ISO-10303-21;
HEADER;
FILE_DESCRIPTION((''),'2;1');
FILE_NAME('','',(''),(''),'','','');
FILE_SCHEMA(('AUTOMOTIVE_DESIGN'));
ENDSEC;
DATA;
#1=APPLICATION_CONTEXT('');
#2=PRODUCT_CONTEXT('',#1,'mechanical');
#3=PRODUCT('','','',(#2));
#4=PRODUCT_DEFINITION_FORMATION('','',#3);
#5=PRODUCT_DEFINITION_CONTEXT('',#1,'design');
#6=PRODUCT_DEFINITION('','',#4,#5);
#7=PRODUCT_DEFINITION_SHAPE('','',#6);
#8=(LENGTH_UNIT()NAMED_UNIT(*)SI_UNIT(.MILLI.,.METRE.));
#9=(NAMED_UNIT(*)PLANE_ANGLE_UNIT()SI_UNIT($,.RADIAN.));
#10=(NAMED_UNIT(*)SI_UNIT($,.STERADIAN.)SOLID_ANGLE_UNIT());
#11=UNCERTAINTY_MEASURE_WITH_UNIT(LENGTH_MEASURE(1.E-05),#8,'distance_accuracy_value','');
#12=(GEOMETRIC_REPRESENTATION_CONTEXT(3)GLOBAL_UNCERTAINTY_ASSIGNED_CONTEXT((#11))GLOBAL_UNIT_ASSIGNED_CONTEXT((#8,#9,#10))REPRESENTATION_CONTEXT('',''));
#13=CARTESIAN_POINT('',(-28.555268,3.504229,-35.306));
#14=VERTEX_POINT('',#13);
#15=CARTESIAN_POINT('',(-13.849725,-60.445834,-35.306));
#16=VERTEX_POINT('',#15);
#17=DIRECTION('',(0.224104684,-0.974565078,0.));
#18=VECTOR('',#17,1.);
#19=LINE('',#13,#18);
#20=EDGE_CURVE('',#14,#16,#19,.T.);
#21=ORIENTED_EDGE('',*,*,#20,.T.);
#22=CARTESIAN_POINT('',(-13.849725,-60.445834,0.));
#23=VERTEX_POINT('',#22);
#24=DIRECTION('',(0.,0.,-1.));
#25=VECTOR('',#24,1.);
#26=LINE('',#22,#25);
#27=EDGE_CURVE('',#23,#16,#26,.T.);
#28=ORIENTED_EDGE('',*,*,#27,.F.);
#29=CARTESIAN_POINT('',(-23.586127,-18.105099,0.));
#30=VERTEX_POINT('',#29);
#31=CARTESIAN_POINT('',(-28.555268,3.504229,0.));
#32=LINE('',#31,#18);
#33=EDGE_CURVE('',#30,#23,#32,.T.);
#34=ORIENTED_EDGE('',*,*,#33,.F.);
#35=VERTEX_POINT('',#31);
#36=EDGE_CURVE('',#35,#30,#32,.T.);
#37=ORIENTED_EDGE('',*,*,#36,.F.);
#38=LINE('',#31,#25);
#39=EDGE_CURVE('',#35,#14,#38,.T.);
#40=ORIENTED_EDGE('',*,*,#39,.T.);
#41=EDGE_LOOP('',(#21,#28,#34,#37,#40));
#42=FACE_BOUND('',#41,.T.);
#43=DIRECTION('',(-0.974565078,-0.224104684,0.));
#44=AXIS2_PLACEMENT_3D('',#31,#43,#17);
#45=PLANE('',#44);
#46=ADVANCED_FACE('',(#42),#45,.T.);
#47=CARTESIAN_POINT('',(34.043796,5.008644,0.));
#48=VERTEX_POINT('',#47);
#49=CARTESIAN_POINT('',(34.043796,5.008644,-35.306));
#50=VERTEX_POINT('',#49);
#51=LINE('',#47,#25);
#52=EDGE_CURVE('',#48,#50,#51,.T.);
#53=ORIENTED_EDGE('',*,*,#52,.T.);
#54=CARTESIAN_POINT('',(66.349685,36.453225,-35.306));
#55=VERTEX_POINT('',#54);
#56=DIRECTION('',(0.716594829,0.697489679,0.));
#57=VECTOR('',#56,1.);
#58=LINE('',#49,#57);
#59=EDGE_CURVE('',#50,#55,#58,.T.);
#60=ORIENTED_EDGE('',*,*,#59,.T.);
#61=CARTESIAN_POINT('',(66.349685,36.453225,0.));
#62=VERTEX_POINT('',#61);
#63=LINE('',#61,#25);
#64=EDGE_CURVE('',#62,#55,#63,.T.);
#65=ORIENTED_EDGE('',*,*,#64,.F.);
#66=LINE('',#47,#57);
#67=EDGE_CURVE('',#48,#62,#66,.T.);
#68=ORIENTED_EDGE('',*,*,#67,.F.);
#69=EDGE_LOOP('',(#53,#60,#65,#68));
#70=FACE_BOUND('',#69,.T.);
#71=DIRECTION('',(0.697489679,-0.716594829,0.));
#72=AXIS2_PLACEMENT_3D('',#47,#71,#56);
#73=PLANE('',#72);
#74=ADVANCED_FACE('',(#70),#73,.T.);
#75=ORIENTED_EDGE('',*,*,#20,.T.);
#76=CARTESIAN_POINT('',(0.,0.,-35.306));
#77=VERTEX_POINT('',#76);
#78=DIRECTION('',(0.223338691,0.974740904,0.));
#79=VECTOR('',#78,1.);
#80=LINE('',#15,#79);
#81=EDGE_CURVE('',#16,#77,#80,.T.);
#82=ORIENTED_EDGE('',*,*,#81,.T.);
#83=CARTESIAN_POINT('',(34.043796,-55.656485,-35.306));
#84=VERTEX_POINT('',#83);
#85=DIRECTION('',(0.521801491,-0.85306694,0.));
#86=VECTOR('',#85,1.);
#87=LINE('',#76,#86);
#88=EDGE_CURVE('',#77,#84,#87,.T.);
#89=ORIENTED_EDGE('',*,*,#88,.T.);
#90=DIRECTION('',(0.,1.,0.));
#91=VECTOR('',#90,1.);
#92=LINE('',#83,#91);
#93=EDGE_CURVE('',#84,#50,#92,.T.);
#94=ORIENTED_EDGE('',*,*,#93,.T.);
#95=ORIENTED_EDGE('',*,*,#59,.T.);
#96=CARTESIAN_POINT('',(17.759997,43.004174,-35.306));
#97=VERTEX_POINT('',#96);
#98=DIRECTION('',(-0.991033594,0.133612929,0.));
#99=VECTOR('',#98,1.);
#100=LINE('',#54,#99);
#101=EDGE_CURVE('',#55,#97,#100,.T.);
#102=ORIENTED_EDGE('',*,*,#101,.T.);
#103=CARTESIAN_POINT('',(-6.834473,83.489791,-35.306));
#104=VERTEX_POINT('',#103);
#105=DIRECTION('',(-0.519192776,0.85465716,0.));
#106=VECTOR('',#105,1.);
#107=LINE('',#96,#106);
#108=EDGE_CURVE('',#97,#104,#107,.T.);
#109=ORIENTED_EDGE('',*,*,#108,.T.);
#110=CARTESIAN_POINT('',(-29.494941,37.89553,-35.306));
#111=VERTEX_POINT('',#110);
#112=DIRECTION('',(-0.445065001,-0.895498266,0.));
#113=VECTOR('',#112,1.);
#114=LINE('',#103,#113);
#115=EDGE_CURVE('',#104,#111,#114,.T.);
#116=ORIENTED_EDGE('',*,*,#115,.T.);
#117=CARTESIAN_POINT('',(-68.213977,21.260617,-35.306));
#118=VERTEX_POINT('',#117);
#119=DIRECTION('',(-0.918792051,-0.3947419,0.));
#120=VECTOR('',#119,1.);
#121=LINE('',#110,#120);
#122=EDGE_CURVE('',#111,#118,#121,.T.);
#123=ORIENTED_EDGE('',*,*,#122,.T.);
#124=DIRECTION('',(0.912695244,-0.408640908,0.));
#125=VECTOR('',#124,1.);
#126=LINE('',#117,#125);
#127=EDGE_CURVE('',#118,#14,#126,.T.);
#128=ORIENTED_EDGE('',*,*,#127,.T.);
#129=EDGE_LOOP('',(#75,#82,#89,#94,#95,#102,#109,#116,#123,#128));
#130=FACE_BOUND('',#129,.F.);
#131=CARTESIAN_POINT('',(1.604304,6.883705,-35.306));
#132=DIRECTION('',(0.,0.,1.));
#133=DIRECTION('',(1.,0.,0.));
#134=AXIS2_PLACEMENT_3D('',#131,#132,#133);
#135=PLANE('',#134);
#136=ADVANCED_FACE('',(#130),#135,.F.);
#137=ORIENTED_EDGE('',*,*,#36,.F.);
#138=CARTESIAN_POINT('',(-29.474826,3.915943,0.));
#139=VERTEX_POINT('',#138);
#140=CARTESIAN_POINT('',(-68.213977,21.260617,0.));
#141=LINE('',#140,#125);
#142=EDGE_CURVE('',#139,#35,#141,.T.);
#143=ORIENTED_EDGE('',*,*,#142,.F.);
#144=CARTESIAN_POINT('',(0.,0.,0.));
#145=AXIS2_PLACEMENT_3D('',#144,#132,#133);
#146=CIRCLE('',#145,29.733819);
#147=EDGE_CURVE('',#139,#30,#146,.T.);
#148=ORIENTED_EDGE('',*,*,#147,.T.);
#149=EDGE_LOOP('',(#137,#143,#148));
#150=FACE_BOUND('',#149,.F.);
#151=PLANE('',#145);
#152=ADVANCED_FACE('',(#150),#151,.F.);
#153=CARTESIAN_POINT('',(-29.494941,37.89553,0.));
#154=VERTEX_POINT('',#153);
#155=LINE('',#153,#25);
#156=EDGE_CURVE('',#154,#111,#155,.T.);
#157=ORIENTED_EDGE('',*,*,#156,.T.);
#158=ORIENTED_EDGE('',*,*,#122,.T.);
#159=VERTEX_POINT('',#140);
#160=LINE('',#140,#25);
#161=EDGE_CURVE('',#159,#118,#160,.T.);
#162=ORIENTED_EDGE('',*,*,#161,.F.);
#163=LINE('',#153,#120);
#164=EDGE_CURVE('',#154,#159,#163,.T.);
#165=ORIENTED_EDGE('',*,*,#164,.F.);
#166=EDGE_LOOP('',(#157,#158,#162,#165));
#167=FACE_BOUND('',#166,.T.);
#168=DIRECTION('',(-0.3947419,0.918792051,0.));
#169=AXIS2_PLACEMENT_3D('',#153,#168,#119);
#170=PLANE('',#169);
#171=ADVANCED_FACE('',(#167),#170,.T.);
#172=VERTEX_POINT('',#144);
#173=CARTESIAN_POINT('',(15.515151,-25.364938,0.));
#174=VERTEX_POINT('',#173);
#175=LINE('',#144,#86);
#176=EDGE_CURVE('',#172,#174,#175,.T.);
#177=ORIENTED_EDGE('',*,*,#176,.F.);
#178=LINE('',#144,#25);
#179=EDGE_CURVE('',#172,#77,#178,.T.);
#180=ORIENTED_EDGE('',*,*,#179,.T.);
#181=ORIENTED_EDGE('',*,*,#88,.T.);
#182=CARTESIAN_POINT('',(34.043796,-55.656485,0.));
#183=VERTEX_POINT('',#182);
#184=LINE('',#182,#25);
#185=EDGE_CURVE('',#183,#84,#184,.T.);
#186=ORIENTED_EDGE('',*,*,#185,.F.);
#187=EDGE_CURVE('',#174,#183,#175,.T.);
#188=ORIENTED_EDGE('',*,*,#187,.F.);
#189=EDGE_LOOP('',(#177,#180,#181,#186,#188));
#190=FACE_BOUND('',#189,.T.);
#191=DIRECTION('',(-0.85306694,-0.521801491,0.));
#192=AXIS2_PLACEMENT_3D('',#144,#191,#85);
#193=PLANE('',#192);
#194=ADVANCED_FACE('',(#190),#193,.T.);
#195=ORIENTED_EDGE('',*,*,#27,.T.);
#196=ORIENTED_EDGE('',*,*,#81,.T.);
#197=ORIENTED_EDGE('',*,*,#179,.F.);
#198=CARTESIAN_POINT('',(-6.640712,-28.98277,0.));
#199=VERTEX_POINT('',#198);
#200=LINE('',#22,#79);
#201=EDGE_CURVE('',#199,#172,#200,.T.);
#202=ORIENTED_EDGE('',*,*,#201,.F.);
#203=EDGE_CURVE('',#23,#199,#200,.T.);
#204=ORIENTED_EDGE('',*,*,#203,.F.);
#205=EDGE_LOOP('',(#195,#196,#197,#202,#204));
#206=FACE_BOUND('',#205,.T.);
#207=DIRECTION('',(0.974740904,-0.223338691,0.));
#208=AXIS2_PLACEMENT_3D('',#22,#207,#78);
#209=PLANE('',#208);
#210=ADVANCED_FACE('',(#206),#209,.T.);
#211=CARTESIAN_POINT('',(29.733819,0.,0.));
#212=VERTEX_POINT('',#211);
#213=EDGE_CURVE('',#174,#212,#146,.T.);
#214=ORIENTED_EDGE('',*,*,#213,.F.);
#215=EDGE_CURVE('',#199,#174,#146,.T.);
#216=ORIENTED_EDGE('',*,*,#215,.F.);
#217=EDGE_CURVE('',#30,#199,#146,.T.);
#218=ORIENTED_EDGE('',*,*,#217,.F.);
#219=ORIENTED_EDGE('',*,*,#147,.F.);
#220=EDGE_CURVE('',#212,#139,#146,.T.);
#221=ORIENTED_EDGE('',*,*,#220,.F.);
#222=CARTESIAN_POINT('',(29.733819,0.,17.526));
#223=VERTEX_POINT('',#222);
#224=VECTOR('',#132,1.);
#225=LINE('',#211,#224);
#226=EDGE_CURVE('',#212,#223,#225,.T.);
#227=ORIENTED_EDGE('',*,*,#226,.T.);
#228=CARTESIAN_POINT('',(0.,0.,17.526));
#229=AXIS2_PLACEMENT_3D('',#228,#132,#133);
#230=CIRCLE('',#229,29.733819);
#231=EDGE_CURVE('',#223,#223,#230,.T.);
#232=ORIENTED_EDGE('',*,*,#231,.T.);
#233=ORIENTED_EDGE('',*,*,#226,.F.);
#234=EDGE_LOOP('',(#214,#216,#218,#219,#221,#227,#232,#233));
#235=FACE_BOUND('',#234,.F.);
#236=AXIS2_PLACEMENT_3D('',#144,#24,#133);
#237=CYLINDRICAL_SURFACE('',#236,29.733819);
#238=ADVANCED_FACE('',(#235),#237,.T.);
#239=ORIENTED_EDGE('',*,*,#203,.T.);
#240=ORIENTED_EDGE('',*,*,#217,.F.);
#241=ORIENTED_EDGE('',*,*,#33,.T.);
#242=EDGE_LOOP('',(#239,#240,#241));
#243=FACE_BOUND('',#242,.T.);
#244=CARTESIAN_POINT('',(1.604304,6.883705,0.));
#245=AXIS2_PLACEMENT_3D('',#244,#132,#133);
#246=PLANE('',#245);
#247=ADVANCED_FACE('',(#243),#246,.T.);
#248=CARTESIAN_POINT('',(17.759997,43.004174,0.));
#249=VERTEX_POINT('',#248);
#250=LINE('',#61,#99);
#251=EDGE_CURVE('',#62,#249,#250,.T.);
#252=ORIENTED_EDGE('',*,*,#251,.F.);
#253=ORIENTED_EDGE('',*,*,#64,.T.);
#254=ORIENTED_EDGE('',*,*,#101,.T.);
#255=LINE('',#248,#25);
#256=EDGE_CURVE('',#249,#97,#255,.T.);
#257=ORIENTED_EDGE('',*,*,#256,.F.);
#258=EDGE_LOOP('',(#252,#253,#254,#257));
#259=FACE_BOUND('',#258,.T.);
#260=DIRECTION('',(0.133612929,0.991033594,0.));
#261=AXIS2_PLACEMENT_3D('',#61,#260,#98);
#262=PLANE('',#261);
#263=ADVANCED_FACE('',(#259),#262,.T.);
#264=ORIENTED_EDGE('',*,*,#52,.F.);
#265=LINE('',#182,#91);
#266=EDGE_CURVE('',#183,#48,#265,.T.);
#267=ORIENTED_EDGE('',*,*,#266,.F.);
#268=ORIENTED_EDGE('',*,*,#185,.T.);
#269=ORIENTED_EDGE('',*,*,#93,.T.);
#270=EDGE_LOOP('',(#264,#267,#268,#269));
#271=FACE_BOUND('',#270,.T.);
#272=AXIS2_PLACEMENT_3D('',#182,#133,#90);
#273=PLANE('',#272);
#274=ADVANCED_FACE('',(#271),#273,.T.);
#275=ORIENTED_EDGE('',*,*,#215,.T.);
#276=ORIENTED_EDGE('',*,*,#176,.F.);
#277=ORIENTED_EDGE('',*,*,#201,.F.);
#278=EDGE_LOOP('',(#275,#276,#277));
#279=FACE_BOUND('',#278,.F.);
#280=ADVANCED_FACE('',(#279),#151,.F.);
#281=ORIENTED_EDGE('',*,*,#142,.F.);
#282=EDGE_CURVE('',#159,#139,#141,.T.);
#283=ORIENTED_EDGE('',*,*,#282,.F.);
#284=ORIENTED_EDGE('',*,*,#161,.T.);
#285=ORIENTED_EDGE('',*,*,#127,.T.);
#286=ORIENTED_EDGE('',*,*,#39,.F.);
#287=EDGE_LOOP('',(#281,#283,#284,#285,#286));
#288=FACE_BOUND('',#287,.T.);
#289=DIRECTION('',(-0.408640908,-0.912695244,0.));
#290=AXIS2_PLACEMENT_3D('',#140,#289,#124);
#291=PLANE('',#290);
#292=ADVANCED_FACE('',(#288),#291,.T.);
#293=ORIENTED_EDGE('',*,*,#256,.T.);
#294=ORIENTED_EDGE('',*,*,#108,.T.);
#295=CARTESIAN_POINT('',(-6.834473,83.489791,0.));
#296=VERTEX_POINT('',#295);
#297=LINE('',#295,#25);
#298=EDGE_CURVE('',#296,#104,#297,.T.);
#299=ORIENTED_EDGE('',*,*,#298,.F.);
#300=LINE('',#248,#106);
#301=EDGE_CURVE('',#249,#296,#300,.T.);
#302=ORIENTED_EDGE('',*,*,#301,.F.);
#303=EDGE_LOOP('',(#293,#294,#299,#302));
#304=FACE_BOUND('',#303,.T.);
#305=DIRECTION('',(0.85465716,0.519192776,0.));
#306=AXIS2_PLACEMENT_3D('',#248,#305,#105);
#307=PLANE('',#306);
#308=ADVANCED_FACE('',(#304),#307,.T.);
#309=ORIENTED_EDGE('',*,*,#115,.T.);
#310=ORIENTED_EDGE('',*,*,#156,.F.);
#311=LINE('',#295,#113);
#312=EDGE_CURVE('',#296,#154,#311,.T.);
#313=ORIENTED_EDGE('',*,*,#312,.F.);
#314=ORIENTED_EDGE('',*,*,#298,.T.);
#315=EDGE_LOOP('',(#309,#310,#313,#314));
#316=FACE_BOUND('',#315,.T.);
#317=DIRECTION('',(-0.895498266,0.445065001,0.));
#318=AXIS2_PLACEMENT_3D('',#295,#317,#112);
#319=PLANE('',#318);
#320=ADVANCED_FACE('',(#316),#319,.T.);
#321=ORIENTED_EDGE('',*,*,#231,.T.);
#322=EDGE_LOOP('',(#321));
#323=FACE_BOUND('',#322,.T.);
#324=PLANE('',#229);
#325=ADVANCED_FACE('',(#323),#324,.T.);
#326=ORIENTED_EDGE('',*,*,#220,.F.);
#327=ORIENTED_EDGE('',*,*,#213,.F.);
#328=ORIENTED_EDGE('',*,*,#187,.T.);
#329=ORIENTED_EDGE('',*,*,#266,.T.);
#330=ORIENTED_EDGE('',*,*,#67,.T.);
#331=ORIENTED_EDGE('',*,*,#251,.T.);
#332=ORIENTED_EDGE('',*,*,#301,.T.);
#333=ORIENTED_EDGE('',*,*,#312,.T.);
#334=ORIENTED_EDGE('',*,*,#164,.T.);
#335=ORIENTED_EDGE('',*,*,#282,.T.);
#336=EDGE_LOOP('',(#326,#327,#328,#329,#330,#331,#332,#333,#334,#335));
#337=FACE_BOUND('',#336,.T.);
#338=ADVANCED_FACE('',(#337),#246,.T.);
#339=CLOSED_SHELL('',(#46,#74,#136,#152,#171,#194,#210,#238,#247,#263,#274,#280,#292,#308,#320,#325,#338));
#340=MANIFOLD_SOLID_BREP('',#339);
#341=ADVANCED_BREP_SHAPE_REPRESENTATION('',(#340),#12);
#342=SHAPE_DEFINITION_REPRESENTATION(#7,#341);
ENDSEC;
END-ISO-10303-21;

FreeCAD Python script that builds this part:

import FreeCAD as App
import Part
import Sketcher

V = App.Vector
Q = App.Units.Quantity

doc = App.newDocument("Part")
body = doc.addObject("PartDesign::Body", "Body")

# Sketch on XY plane
sketch1 = body.newObject("Sketcher::SketchObject", "Sketch")
sketch1.AttachmentSupport = (doc.getObject("XY_Plane"), [""])
sketch1.MapMode = "FlatFace"
sketch1.addGeometry(Part.LineSegment(V(-7, 83, 0), V(-29, 38, 0)), False)
sketch1.addGeometry(Part.LineSegment(V(-29, 38, 0), V(-68, 21, 0)), False)
sketch1.addGeometry(Part.LineSegment(V(-68, 21, 0), V(-29, 4, 0)), False)
sketch1.addGeometry(Part.LineSegment(V(-29, 4, 0), V(-14, -60, 0)), False)
sketch1.addGeometry(Part.LineSegment(V(-14, -60, 0), V(0, 0, 0)), False)
sketch1.addGeometry(Part.LineSegment(V(0, 0, 0), V(34, -56, 0)), False)
sketch1.addGeometry(Part.LineSegment(V(34, -56, 0), V(34, 5, 0)), False)
sketch1.addGeometry(Part.LineSegment(V(34, 5, 0), V(66, 36, 0)), False)
sketch1.addGeometry(Part.LineSegment(V(66, 36, 0), V(18, 43, 0)), False)
sketch1.addGeometry(Part.LineSegment(V(18, 43, 0), V(-7, 83, 0)), False)
sketch1.addConstraint(Sketcher.Constraint("Coincident", 0, 2, 1, 1))
sketch1.addConstraint(Sketcher.Constraint("Coincident", 1, 2, 2, 1))
sketch1.addConstraint(Sketcher.Constraint("Coincident", 2, 2, 3, 1))
sketch1.addConstraint(Sketcher.Constraint("Coincident", 3, 2, 4, 1))
sketch1.addConstraint(Sketcher.Constraint("Coincident", 4, 2, 5, 1))
sketch1.addConstraint(Sketcher.Constraint("Coincident", 5, 2, 6, 1))
sketch1.addConstraint(Sketcher.Constraint("Coincident", 6, 2, 7, 1))
sketch1.addConstraint(Sketcher.Constraint("Coincident", 7, 2, 8, 1))
sketch1.addConstraint(Sketcher.Constraint("Coincident", 8, 2, 9, 1))
sketch1.addConstraint(Sketcher.Constraint("Coincident", 9, 2, 0, 1))
sketch1.addConstraint(Sketcher.Constraint("Vertical", 6))
sketch1.addConstraint(Sketcher.Constraint("Coincident", 4, 2, -1, 1))
sketch1.addConstraint(Sketcher.Constraint("DistanceY", 5, 2, -1, 1, Q("2.1912002 in")))
sketch1.addConstraint(Sketcher.Constraint("Distance", 2, Q("43.452302 mm")))
sketch1.addConstraint(Sketcher.Constraint("DistanceY", 6, 1, 6, 2, Q("60.665129 mm")))
sketch1.addConstraint(Sketcher.Constraint("DistanceY", 2, 2, 0, 2, Q("34.391301 mm")))
sketch1.addConstraint(Sketcher.Constraint("DistanceY", 5, 2, 1, 2, Q("76.917102 mm")))
sketch1.addConstraint(Sketcher.Constraint("DistanceX", 8, 2, 6, 2, Q("16.283799 mm")))
sketch1.addConstraint(Sketcher.Constraint("Distance", 1, Q("42.14124 mm")))
sketch1.addConstraint(Sketcher.Constraint("Distance", 3, Q("65.619079 mm")))
sketch1.addConstraint(Sketcher.Constraint("Distance", 5, Q("65.242811 mm")))
sketch1.addConstraint(Sketcher.Constraint("DistanceX", 0, 2, -1, 1, Q("29.494941 mm")))
sketch1.addConstraint(Sketcher.Constraint("DistanceY", -1, 1, 0, 2, Q("37.89553 mm")))
sketch1.addConstraint(Sketcher.Constraint("DistanceY", -1, 1, 9, 2, Q("83.489791 mm")))
sketch1.addConstraint(Sketcher.Constraint("DistanceY", 3, 2, 1, 2, Q("81.706451 mm")))
sketch1.addConstraint(Sketcher.Constraint("DistanceX", 6, 2, 7, 2, Q("32.305889 mm")))
sketch1.addConstraint(Sketcher.Constraint("DistanceY", 6, 2, 7, 2, Q("31.444581 mm")))
sketch1.addConstraint(Sketcher.Constraint("DistanceY", 6, 2, 8, 2, Q("37.99553 mm")))
sketch1.addConstraint(Sketcher.Constraint("DistanceX", 9, 2, 8, 2, Q("24.59447 mm")))
pad1 = body.newObject("PartDesign::Pad", "Pad")
pad1.Profile = sketch1
pad1.Length = Q("1.39 in")
pad1.Reversed = True

# Sketch on XY plane
sketch2 = body.newObject("Sketcher::SketchObject", "Sketch001")
sketch2.AttachmentSupport = (doc.getObject("XY_Plane"), [""])
sketch2.MapMode = "FlatFace"
sketch2.addGeometry(Part.Circle(V(0, 0, 0), V(0, 0, 1), 30), False)
sketch2.addConstraint(Sketcher.Constraint("Coincident", 0, 3, -1, 1))
sketch2.addConstraint(Sketcher.Constraint("Diameter", 0, Q("59.467638 mm")))
pad2 = body.newObject("PartDesign::Pad", "Pad001")
pad2.Profile = sketch2
pad2.Length = Q("0.69 in")

doc.recompute()
